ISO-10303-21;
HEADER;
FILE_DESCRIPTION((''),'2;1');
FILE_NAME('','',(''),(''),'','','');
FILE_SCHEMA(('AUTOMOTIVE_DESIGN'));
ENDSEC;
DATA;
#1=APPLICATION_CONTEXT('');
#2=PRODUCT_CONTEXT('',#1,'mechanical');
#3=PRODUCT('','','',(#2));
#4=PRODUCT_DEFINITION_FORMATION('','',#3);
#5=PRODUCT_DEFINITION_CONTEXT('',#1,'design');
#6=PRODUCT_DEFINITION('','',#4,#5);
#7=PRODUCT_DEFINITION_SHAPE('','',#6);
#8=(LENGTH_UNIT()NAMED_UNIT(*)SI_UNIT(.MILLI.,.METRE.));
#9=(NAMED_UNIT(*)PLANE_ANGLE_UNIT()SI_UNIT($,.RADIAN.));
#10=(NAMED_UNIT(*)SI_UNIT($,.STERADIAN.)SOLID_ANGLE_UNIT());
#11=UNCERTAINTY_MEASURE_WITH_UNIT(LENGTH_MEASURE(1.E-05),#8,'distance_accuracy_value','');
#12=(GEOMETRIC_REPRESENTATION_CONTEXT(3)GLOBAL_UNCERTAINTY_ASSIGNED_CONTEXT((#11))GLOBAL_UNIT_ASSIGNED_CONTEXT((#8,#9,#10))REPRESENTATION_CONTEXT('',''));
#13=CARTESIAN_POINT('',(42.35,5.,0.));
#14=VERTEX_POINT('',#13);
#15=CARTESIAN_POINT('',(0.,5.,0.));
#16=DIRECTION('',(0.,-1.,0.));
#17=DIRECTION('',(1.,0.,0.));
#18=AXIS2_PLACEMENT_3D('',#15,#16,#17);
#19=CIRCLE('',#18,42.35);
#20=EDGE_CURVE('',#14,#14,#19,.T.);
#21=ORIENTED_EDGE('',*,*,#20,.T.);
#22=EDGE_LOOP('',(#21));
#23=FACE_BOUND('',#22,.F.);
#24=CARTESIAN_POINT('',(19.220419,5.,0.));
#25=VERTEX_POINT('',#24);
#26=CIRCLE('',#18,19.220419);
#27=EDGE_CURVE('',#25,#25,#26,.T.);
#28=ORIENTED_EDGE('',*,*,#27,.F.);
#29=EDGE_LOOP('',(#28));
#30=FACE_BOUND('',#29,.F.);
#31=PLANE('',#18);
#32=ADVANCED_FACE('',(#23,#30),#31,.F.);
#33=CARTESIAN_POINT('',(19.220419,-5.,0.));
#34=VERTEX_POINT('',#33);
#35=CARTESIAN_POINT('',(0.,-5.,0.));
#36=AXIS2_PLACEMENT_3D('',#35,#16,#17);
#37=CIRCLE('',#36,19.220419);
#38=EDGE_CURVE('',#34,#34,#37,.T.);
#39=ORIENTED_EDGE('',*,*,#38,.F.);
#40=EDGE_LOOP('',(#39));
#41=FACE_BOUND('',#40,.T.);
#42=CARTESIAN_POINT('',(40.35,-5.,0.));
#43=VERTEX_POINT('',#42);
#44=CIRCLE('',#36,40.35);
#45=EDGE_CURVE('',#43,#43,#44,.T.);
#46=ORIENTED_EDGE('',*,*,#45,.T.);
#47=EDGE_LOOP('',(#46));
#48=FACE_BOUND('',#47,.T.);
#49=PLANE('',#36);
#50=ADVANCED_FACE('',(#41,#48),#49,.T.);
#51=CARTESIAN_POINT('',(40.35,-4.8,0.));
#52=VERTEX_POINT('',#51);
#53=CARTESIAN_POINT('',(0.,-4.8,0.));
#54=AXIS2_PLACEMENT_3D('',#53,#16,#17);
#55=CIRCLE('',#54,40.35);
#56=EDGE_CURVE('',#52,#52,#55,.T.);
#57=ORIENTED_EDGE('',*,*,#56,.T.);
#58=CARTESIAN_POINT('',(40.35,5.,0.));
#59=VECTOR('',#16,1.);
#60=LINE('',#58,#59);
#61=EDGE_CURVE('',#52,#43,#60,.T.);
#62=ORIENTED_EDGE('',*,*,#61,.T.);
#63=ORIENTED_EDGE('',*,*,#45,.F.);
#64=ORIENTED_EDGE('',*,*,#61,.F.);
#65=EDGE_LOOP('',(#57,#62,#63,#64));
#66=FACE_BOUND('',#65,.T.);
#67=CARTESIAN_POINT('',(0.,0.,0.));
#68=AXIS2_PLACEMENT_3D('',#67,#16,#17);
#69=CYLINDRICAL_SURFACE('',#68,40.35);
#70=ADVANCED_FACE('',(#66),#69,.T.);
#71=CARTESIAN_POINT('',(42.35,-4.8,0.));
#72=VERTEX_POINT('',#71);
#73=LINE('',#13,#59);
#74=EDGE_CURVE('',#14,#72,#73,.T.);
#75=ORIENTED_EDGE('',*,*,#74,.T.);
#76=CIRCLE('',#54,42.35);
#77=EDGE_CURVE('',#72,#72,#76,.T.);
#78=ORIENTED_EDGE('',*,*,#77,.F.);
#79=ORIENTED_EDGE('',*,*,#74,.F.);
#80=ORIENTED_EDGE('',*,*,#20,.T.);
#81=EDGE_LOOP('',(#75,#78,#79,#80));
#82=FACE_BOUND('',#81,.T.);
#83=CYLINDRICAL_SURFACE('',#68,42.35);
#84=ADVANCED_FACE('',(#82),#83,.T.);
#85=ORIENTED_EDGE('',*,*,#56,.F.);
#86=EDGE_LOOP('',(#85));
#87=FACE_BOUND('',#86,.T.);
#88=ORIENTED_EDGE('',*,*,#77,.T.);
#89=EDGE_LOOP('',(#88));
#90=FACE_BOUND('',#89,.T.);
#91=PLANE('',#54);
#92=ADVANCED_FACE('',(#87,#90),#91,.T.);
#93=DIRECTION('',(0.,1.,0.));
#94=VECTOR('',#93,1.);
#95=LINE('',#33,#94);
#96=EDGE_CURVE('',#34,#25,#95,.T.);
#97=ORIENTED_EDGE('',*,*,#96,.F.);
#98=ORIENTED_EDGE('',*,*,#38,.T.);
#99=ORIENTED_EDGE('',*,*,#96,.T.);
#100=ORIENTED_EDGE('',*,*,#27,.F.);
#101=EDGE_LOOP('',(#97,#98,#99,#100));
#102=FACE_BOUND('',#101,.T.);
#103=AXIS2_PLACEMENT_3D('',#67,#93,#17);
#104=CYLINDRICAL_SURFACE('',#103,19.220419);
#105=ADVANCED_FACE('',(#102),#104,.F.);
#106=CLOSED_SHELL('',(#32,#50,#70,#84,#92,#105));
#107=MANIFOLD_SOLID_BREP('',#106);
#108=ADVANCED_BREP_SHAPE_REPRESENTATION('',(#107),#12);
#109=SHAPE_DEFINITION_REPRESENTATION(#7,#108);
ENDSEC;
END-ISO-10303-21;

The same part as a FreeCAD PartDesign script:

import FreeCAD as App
import Part
import Sketcher
from FreeCAD import Vector

doc = App.newDocument("Part")
body = doc.addObject("PartDesign::Body", "Body")

# Sketch on XZ plane
sketch1 = doc.addObject("Sketcher::SketchObject", "Sketch")
body.addObject(sketch1)
sketch1.AttachmentSupport = (doc.XZ_Plane, [""])
sketch1.MapMode = "FlatFace"
sketch1.addGeometry([
    Part.Circle(Vector(0, 0, 0), Vector(0, 0, 1), 40),
    Part.Circle(Vector(0, 0, 0), Vector(0, 0, 1), 19),
], False)
sketch1.addConstraint([
    Sketcher.Constraint("Coincident", 0, 3, -1, 1),
    Sketcher.Constraint("Coincident", 1, 3, -1, 1),
    Sketcher.Constraint("Diameter", 0, 80.7),
    Sketcher.Constraint("Diameter", 1, 38.440838),
])
pad1 = doc.addObject("PartDesign::Pad", "Pad")
body.addObject(pad1)
pad1.Profile = sketch1
pad1.Length = 10
pad1.Midplane = True

# Sketch on XZ plane
sketch2 = doc.addObject("Sketcher::SketchObject", "Sketch001")
body.addObject(sketch2)
sketch2.AttachmentSupport = (doc.XZ_Plane, [""])
sketch2.MapMode = "FlatFace"
sketch2.addGeometry([
    Part.Circle(Vector(0, 0, 0), Vector(0, 0, 1), 42),
    Part.Circle(Vector(0, 0, 0), Vector(0, 0, 1), 40),
], False)
sketch2.addConstraint([
    Sketcher.Constraint("Coincident", 0, 3, -1, 1),
    Sketcher.Constraint("Coincident", 1, 3, -1, 1),
    Sketcher.Constraint("Diameter", 0, 84.7),
    Sketcher.Constraint("Diameter", 1, 80.7),
])
pad2 = doc.addObject("PartDesign::Pad", "Pad001")
body.addObject(pad2)
pad2.Profile = sketch2
pad2.Type = "TwoLengths"
pad2.Length = 4.8
pad2.Length2 = 5

doc.recompute()
